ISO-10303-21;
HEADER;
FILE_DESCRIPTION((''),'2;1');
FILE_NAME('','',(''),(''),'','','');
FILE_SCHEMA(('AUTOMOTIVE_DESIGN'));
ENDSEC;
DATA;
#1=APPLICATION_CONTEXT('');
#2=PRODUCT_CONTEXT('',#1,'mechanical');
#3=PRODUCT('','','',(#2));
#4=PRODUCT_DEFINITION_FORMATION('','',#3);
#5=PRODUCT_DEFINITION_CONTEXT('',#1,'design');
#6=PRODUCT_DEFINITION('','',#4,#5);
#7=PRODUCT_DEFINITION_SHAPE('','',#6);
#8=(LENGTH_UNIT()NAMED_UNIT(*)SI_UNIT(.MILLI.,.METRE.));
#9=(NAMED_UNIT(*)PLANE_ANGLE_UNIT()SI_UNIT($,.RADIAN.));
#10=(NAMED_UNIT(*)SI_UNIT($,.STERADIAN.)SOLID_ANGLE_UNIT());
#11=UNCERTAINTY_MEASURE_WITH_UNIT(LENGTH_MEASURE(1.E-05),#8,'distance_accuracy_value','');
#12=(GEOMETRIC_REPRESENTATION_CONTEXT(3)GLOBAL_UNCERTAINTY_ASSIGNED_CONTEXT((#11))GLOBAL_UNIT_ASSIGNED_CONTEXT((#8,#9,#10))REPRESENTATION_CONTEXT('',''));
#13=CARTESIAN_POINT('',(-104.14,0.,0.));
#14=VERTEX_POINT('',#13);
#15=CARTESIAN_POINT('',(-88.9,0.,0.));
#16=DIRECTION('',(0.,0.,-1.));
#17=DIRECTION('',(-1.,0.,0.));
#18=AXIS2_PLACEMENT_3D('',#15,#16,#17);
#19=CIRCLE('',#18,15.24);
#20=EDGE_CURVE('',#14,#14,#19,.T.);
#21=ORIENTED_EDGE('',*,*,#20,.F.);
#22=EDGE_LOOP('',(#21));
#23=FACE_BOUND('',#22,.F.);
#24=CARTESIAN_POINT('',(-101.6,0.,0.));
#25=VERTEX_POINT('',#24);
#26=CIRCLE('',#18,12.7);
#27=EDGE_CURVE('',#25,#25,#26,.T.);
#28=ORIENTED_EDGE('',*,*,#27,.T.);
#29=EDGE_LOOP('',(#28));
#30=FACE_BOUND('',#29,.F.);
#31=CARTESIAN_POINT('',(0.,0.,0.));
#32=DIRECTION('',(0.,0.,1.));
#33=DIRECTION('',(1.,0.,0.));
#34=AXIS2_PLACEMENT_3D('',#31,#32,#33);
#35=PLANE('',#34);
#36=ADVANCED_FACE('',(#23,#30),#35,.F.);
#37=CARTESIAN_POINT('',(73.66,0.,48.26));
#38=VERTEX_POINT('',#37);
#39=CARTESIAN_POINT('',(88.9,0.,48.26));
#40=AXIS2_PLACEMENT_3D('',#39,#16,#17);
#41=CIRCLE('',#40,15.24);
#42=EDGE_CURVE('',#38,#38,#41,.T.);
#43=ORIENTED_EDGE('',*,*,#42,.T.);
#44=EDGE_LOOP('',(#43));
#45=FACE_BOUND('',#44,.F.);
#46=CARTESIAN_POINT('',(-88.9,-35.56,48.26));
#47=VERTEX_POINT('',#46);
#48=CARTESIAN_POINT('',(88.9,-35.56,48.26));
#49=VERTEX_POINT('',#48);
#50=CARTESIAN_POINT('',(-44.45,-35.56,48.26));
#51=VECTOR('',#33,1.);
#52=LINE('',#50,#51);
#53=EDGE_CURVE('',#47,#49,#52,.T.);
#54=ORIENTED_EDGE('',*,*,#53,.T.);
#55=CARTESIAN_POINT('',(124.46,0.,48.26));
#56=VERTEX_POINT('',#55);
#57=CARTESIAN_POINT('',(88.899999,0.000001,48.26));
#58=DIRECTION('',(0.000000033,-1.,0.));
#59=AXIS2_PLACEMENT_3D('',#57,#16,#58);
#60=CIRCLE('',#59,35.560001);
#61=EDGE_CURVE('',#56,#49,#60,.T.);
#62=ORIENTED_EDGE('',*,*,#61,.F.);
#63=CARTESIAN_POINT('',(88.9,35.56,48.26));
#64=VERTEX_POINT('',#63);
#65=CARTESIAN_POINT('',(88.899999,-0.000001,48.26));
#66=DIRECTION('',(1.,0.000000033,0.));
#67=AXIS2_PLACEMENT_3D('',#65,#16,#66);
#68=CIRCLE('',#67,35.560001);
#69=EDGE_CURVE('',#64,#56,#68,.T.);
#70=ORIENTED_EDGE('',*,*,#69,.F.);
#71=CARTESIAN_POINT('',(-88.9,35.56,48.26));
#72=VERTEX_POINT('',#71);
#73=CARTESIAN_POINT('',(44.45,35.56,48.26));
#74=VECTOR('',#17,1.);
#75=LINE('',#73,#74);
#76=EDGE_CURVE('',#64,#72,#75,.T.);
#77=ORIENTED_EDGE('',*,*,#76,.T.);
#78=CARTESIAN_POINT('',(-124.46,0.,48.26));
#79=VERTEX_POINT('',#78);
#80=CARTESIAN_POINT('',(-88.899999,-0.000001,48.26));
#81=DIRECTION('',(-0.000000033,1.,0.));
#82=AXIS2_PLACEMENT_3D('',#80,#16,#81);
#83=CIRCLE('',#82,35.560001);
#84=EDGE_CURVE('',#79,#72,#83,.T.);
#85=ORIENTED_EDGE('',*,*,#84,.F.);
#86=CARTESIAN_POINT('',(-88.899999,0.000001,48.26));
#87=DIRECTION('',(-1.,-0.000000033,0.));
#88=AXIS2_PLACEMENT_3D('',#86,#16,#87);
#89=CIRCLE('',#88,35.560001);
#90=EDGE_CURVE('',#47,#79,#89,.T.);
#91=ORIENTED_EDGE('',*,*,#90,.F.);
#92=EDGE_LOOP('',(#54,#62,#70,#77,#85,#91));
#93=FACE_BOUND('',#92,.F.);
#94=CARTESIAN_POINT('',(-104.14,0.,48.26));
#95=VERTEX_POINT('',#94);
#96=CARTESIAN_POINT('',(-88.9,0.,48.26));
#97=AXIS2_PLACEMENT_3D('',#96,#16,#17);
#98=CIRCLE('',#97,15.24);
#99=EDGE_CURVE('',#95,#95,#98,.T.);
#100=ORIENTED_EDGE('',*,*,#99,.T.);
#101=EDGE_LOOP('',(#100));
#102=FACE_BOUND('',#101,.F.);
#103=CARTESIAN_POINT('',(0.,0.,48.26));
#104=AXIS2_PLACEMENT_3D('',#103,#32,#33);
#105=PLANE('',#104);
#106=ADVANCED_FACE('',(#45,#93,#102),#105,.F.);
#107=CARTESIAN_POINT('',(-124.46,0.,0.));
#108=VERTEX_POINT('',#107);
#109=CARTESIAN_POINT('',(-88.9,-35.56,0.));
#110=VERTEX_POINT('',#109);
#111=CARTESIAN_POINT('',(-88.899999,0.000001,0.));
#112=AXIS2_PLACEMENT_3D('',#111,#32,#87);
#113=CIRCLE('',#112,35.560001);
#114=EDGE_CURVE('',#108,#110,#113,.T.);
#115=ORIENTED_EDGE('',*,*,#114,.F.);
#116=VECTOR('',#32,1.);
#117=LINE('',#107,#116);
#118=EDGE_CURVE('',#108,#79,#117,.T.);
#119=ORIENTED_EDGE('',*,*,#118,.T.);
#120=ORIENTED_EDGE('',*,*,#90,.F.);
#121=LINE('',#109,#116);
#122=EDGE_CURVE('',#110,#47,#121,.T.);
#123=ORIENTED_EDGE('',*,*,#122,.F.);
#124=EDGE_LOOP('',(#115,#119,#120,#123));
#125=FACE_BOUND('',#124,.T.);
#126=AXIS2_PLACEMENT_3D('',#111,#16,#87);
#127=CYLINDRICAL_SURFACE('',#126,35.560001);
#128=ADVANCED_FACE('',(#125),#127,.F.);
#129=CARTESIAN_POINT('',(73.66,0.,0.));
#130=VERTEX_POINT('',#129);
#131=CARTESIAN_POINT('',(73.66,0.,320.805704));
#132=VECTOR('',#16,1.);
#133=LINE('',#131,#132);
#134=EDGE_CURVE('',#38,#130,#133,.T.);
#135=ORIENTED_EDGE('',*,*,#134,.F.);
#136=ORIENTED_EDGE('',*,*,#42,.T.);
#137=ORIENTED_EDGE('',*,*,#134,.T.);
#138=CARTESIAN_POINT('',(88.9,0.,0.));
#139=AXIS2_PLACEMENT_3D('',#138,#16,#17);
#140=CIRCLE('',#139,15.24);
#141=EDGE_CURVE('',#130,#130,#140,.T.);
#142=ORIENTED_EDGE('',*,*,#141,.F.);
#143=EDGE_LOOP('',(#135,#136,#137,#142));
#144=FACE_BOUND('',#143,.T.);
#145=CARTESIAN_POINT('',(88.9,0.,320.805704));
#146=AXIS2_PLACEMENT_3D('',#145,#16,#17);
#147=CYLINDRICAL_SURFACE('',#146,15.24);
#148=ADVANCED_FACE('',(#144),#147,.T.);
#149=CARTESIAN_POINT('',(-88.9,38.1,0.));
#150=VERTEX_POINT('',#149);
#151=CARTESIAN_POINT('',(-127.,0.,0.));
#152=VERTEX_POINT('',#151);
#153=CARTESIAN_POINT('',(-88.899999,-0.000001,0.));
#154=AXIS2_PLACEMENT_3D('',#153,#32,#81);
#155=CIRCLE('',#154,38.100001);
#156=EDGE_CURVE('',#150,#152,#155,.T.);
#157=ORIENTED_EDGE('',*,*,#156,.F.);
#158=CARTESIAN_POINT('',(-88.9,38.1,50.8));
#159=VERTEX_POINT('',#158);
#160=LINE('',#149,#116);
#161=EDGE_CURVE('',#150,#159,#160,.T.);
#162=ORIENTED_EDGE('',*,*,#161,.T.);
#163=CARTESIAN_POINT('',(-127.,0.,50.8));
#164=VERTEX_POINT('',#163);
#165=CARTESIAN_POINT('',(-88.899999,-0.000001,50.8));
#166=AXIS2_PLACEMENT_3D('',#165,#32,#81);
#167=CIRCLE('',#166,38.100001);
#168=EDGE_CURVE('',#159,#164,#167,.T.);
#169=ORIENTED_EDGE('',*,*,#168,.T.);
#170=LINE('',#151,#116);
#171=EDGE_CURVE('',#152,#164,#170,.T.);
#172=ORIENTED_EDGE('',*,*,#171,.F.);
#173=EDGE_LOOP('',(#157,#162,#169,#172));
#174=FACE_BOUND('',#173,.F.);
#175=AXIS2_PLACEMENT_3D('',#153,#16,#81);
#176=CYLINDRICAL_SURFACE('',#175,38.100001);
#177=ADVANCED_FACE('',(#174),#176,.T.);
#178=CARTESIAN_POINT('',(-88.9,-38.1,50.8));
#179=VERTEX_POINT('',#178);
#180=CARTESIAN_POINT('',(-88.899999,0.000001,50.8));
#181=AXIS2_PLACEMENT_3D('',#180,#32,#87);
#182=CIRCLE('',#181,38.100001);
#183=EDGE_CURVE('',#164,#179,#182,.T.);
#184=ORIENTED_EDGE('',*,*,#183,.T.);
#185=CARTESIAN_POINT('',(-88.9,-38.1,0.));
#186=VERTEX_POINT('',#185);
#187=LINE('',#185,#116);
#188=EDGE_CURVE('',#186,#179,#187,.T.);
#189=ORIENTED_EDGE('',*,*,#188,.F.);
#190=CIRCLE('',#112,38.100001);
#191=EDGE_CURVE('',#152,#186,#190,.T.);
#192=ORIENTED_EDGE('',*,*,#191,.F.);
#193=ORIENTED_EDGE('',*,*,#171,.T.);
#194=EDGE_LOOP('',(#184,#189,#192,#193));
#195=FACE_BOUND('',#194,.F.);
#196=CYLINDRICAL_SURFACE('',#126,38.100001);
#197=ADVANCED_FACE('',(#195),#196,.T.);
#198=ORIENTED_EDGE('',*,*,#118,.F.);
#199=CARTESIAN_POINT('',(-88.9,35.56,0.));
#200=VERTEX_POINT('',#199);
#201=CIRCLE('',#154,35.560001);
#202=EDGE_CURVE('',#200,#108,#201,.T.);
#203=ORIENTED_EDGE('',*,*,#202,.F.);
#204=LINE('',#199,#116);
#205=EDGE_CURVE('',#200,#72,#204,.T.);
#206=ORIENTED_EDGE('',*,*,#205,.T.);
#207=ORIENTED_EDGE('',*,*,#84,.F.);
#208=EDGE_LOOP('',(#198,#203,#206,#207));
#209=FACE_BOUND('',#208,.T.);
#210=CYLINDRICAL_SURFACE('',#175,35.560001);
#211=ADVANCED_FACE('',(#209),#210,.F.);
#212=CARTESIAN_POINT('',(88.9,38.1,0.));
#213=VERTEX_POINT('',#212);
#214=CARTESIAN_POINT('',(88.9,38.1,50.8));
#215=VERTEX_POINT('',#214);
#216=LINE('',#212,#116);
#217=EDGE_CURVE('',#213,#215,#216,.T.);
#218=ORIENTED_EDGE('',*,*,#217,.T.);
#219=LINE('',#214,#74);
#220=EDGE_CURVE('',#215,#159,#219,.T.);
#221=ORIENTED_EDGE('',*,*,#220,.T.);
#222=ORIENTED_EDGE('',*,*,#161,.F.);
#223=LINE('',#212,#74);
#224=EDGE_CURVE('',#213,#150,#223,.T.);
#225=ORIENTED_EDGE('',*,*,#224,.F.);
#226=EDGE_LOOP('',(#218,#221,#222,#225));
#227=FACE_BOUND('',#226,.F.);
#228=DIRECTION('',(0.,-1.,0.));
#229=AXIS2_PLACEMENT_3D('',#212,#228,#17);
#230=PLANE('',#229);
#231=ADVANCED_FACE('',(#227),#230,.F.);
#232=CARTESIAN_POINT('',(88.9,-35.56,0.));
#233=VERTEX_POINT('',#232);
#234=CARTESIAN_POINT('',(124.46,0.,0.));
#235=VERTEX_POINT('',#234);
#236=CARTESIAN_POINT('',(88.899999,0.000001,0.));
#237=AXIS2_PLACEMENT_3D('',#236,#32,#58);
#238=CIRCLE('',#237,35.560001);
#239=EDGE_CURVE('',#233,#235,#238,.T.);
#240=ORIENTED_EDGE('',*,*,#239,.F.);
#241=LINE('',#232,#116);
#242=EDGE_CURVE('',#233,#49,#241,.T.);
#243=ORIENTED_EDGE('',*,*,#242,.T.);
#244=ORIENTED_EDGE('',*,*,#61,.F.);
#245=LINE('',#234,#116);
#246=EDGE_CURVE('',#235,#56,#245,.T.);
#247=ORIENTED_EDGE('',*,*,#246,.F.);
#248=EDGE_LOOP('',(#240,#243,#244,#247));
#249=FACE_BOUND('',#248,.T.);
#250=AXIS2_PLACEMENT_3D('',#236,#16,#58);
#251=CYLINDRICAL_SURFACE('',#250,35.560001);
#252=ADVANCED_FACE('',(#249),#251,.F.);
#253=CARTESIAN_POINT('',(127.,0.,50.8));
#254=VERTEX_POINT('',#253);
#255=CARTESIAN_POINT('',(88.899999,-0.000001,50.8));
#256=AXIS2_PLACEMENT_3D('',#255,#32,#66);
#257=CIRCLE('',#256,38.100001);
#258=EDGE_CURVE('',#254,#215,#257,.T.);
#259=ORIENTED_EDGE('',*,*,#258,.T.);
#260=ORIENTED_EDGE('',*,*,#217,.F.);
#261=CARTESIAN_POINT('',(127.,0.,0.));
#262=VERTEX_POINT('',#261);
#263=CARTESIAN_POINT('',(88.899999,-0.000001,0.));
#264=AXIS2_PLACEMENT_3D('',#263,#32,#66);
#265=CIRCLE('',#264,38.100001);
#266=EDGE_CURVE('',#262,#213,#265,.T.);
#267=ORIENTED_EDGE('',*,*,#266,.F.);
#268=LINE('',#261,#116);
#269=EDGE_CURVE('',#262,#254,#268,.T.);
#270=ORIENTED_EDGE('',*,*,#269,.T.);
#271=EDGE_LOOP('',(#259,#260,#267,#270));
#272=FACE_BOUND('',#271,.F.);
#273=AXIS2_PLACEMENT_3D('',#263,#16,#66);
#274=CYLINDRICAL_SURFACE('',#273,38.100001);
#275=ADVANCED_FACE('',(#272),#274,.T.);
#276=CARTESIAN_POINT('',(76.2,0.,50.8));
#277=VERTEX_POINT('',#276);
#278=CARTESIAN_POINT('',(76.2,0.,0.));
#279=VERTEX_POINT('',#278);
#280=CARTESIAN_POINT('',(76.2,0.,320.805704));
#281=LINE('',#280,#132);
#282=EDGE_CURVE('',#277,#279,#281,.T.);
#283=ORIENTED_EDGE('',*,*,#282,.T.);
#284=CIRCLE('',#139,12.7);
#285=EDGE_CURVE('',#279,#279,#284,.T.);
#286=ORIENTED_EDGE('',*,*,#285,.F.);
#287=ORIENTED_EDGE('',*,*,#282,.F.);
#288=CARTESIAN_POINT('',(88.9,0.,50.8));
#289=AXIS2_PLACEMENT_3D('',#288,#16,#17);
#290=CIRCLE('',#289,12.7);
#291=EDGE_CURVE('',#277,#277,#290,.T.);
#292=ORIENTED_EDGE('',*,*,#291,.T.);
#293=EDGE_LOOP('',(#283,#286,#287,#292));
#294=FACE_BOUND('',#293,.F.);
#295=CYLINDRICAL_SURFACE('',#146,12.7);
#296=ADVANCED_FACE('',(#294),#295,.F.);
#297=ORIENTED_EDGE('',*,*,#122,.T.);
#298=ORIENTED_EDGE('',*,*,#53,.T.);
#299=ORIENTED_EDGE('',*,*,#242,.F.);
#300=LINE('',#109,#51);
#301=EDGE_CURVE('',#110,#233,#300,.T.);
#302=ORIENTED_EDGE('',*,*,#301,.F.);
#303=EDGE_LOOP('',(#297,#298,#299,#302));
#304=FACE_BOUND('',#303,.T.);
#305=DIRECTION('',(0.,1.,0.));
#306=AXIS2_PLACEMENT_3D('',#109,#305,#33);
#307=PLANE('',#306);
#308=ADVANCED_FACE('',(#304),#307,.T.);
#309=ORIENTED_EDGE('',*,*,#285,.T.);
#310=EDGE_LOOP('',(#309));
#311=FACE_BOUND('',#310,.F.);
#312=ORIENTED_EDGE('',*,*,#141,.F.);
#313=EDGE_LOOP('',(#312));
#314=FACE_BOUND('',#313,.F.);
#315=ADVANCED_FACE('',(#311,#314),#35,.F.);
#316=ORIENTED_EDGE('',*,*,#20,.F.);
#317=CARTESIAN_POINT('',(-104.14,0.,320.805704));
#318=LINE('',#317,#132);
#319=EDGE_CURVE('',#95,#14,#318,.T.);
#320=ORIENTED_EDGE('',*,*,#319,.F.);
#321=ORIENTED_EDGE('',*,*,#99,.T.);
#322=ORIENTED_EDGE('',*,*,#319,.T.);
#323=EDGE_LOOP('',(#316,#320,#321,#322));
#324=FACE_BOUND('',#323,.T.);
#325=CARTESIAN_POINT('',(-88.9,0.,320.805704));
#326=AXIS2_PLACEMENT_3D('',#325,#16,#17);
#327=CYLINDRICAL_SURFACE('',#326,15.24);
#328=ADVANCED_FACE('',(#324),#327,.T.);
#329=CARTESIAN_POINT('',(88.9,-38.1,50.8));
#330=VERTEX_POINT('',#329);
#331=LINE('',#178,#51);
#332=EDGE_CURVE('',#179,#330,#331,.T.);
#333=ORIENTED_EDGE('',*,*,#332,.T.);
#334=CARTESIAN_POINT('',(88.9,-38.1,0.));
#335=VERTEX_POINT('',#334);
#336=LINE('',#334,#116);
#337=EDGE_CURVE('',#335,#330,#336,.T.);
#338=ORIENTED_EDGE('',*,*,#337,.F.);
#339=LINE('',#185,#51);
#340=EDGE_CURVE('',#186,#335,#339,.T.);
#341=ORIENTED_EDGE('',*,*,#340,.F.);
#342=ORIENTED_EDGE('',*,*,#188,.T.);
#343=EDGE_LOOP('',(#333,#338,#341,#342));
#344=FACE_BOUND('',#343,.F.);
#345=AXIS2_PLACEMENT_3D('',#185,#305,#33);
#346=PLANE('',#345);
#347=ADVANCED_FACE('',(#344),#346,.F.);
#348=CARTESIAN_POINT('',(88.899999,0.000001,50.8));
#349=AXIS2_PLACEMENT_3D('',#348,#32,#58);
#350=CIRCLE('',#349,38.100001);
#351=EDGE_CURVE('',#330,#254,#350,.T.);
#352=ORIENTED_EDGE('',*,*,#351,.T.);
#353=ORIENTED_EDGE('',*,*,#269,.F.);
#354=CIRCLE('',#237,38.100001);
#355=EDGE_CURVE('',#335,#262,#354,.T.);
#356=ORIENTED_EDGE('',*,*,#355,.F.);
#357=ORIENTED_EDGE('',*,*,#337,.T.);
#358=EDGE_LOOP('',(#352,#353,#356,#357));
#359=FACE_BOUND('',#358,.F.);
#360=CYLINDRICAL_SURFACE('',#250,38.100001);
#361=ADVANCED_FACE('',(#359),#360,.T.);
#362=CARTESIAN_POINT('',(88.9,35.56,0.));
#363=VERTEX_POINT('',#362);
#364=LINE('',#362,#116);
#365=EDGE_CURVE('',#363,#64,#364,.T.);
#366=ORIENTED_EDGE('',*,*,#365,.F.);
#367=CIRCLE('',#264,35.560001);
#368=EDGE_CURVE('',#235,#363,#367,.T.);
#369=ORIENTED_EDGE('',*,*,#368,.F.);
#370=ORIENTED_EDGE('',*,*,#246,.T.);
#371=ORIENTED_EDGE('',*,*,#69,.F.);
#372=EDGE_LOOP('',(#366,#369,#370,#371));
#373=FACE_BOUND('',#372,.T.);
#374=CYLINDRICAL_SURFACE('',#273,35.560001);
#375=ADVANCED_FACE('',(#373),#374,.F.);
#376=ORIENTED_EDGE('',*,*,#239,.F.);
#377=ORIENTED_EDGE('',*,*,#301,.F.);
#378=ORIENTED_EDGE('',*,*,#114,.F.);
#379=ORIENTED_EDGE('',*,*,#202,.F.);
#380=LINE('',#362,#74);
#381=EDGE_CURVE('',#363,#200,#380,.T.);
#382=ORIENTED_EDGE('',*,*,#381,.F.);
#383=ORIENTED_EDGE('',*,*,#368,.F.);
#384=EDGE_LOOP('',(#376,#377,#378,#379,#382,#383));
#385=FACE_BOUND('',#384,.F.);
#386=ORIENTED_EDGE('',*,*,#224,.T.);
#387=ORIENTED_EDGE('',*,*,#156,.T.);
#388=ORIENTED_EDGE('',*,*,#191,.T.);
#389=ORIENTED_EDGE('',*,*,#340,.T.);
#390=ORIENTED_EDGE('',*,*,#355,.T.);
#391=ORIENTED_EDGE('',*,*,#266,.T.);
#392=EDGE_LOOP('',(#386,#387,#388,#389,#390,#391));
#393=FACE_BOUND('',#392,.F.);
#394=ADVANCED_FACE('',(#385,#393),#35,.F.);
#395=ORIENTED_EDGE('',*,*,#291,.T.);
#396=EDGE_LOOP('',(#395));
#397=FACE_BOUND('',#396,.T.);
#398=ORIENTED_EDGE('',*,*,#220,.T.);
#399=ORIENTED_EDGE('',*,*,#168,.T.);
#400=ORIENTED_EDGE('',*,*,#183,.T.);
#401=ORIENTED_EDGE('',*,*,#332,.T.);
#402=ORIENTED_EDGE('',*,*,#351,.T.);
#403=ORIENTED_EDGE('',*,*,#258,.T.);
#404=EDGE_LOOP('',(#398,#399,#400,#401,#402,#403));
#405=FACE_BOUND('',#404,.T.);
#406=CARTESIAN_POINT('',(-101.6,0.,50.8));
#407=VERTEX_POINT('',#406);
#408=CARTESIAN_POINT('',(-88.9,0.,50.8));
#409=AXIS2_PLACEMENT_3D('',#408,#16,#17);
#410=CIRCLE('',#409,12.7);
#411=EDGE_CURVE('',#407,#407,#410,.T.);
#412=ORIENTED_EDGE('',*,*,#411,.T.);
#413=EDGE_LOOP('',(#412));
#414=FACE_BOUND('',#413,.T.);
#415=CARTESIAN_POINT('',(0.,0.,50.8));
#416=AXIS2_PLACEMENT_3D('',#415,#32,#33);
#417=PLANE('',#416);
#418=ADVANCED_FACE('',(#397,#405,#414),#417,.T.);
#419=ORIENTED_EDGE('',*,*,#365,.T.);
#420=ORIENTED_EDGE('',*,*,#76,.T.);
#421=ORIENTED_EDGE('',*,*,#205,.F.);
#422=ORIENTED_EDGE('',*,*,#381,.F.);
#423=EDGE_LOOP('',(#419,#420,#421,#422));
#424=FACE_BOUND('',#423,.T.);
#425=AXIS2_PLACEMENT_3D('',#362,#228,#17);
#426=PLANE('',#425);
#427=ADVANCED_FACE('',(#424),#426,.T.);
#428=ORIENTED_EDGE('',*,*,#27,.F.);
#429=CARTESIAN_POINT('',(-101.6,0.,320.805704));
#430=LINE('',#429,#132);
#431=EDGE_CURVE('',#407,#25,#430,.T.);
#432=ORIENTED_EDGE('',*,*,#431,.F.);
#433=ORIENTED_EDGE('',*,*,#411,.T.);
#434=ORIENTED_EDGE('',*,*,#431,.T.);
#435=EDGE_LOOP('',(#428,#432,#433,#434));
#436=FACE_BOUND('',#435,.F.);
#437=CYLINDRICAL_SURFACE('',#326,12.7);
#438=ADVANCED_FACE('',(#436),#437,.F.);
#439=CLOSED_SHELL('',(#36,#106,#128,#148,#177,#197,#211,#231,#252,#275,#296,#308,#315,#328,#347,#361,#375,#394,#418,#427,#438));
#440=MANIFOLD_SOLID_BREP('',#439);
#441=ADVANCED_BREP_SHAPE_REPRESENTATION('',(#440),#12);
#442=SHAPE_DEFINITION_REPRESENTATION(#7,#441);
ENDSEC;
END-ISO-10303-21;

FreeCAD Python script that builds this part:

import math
import FreeCAD as App
import Part
import Sketcher
Q = App.Units.Quantity


def faces_at(feature, points):
    """Names of the faces that lie closest to the given points."""
    faces = feature.Shape.Faces
    near = lambda p: min(range(len(faces)), key=lambda i: faces[i].distToShape(Part.Vertex(*p))[0])
    return sorted({f"Face{near(p) + 1}" for p in points})

doc = App.newDocument("Part")
body = doc.addObject("PartDesign::Body", "Body")

sketch1 = doc.addObject("Sketcher::SketchObject", "Sketch")
body.addObject(sketch1)
sketch1.AttachmentSupport = (doc.XY_Plane, [""])
sketch1.MapMode = "FlatFace"
sketch1.addGeometry(Part.LineSegment(App.Vector(88.9, 38.1, 0), App.Vector(-88.9, 38.1, 0)), False)
sketch1.addGeometry(Part.ArcOfCircle(Part.Circle(App.Vector(-88.899999, -0.000001, 0), App.Vector(0, 0, 1), 38.100001), math.radians(90.000002), math.radians(179.999998)), False)
sketch1.addGeometry(Part.ArcOfCircle(Part.Circle(App.Vector(-88.899999, 0.000001, 0), App.Vector(0, 0, 1), 38.100001), math.radians(-179.999998), math.radians(-90.000002)), False)
sketch1.addGeometry(Part.LineSegment(App.Vector(-88.9, -38.1, 0), App.Vector(88.9, -38.1, 0)), False)
sketch1.addGeometry(Part.ArcOfCircle(Part.Circle(App.Vector(88.899999, 0.000001, 0), App.Vector(0, 0, 1), 38.100001), math.radians(-89.999998), math.radians(-0.000002)), False)
sketch1.addGeometry(Part.ArcOfCircle(Part.Circle(App.Vector(88.899999, -0.000001, 0), App.Vector(0, 0, 1), 38.100001), math.radians(0.000002), math.radians(89.999998)), False)
sketch1.addConstraint(Sketcher.Constraint("Tangent", 0, 2, 1, 1))
sketch1.addConstraint(Sketcher.Constraint("Tangent", 1, 2, 2, 1))
sketch1.addConstraint(Sketcher.Constraint("Tangent", 2, 2, 3, 1))
sketch1.addConstraint(Sketcher.Constraint("Tangent", 3, 2, 4, 1))
sketch1.addConstraint(Sketcher.Constraint("Tangent", 4, 2, 5, 1))
sketch1.addConstraint(Sketcher.Constraint("Tangent", 5, 2, 0, 1))
sketch1.addConstraint(Sketcher.Constraint("Horizontal", 0))
sketch1.addConstraint(Sketcher.Constraint("Horizontal", 3))
sketch1.addConstraint(Sketcher.Constraint("Equal", 1, 2))
sketch1.addConstraint(Sketcher.Constraint("Equal", 2, 4))
sketch1.addConstraint(Sketcher.Constraint("Symmetric", 1, 3, 4, 3, -1, 1))
sketch1.addConstraint(Sketcher.Constraint("PointOnObject", 1, 2, -1))
sketch1.addConstraint(Sketcher.Constraint("PointOnObject", 4, 2, -1))
sketch1.addConstraint(Sketcher.Constraint("Radius", 1, Q("1.5 in")))
sketch1.addConstraint(Sketcher.Constraint("DistanceX", 0, 2, 0, 1, Q("7 in")))
pad1 = doc.addObject("PartDesign::Pad", "Pad")
body.addObject(pad1)
pad1.Profile = sketch1
pad1.Length = Q("2 in")

sketch2 = doc.addObject("Sketcher::SketchObject", "Sketch001")
body.addObject(sketch2)
sketch2.AttachmentSupport = (doc.XY_Plane, [""])
sketch2.MapMode = "FlatFace"
sketch2.AttachmentOffset = App.Placement(App.Vector(0, 0, 2 * 25.4), App.Rotation())
sketch2.addGeometry(Part.Circle(App.Vector(-88.9, 0, 0), App.Vector(0, 0, 1), 12.7), False)
sketch2.addGeometry(Part.Circle(App.Vector(88.9, 0, 0), App.Vector(0, 0, 1), 12.7), False)
sketch2.addConstraint(Sketcher.Constraint("Equal", 0, 1))
sketch2.addConstraint(Sketcher.Constraint("Symmetric", 0, 3, 1, 3, -1, 1))
sketch2.addConstraint(Sketcher.Constraint("PointOnObject", 0, 3, -1))
sketch2.addConstraint(Sketcher.Constraint("Diameter", 0, Q("1 in")))
sketch2.addConstraint(Sketcher.Constraint("DistanceX", 0, 3, 1, 3, Q("7 in")))
doc.recompute()
hole = doc.addObject("PartDesign::Hole", "Hole")
body.addObject(hole)
hole.Profile = sketch2
hole.ThreadType = "None"
hole.Diameter = Q("1 in")
hole.DepthType = "ThroughAll"
doc.recompute()

thickness = doc.addObject("PartDesign::Thickness", "Thickness")
body.addObject(thickness)
thickness.Base = (hole, faces_at(hole, [(0, 0, 0)]))
thickness.Value = Q("0.1 in")
thickness.Reversed = True
thickness.Join = "Arc"

doc.recompute()
